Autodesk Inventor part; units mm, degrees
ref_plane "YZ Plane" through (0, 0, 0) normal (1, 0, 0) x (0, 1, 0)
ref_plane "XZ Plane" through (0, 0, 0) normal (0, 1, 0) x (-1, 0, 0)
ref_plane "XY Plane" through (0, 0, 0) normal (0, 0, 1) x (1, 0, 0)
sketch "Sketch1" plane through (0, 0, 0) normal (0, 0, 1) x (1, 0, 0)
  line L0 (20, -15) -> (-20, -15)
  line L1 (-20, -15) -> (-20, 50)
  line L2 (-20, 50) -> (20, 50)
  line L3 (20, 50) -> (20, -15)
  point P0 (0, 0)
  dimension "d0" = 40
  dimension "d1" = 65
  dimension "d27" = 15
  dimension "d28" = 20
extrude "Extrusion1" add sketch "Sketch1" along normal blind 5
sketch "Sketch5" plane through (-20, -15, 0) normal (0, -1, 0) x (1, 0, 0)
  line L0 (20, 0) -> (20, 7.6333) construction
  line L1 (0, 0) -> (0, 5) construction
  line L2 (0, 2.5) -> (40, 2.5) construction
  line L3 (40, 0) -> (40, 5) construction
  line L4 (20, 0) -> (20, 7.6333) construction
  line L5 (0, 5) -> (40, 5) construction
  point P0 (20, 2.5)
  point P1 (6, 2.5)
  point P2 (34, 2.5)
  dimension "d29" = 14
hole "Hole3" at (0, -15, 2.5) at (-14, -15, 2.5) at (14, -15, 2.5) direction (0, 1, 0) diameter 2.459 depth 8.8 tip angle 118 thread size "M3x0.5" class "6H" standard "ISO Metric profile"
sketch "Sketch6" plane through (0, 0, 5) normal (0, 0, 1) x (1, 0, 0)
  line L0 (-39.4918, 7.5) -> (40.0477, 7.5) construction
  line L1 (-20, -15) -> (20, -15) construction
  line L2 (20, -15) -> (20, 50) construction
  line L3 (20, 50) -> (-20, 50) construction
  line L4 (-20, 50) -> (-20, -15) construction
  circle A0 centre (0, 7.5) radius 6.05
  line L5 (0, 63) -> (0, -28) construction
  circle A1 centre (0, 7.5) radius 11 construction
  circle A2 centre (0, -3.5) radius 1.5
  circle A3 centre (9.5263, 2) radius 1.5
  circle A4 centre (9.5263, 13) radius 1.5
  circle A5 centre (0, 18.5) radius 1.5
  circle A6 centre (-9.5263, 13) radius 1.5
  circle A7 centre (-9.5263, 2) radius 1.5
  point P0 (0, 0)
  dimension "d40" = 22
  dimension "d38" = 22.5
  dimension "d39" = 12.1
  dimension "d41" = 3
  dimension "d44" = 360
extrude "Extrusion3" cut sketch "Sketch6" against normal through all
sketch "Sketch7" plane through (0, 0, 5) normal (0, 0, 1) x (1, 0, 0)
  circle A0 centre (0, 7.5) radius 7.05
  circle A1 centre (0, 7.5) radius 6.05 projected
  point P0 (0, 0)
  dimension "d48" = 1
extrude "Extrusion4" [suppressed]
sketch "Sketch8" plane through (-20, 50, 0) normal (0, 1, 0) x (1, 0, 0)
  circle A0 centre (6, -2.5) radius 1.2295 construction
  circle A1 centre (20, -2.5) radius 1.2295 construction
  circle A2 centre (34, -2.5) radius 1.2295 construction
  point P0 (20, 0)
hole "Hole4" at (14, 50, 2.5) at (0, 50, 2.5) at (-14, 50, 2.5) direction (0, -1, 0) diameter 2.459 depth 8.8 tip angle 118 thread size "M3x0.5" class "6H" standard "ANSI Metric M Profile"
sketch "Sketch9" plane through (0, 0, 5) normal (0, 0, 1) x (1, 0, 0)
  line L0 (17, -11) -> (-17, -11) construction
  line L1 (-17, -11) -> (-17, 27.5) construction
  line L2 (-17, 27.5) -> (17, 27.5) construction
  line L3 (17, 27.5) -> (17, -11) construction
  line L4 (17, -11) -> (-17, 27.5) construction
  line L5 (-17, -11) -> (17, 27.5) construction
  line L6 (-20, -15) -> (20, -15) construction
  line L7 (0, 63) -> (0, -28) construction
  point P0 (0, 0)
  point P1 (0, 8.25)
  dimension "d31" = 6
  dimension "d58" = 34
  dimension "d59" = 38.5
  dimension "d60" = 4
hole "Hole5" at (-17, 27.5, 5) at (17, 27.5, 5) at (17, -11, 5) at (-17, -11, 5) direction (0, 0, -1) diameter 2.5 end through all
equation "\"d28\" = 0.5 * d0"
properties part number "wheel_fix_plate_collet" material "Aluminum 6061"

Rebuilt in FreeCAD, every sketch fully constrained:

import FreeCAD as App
import Part
import Sketcher
Q = App.Units.Quantity


def add_polygon(sketch, points):
    """Adds a closed chain of lines whose ends are joined by coincident constraints."""
    first, n = sketch.GeometryCount, len(points)
    for a, b in zip(points, points[1:] + points[:1]):
        sketch.addGeometry(Part.LineSegment(App.Vector(*a, 0), App.Vector(*b, 0)), False)
    for i in range(n):
        sketch.addConstraint(Sketcher.Constraint("Coincident", first + i, 2, first + (i + 1) % n, 1))

doc = App.newDocument("Part")
params = doc.addObject("Spreadsheet::Sheet", "Params")
for row, (alias, value) in enumerate([
    ("sketch1_width", "40 mm"),
    ("sketch1_height", "65 mm"),
    ("pad1_length", "5 mm"),
    ("hole_diameter", "2.459 mm"),
    ("hole_depth", "8.8 mm"),
    ("sketch3_diameter", "3 mm"),
    ("sketch3_diameter2", "12.1 mm"),
    ("hole2_diameter", "2.459 mm"),
    ("hole2_depth", "8.8 mm"),
    ("sketch5_diameter", "2.5 mm"),
    ("hole3_diameter", "2.5 mm"),
], start=1):
    params.set(f"A{row}", alias)
    params.set(f"B{row}", "=" + value)
    params.setAlias(f"B{row}", alias)

body = doc.addObject("PartDesign::Body", "Body")

# Sketch on XY plane
sketch1 = body.newObject("Sketcher::SketchObject", "Sketch")
sketch1.AttachmentSupport = (doc.getObject("XY_Plane"), [""])
sketch1.MapMode = "FlatFace"
add_polygon(sketch1, [(-20, -15), (20, -15), (20, 50), (-20, 50)])  # lines 0-3
sketch1.addConstraint([
    Sketcher.Constraint("Horizontal", 0),
    Sketcher.Constraint("Vertical", 1),
    Sketcher.Constraint("Horizontal", 2),
    Sketcher.Constraint("Vertical", 3),
    Sketcher.Constraint("DistanceX", 0, 1, 0, 2, Q("40 mm")),
    Sketcher.Constraint("DistanceY", 1, 1, 1, 2, Q("65 mm")),
    Sketcher.Constraint("DistanceX", -1, 1, 0, 2, Q("20 mm")),
    Sketcher.Constraint("DistanceY", 0, 2, -1, 1, Q("15 mm")),
])
sketch1.setExpression("Constraints[8]", "Params.sketch1_width")
sketch1.setExpression("Constraints[9]", "Params.sketch1_height")
pad1 = body.newObject("PartDesign::Pad", "Pad")
pad1.Profile = sketch1
pad1.setExpression("Length", "Params.pad1_length")

# Sketch on XZ plane
sketch2 = body.newObject("Sketcher::SketchObject", "Sketch001")
sketch2.AttachmentSupport = (doc.getObject("XZ_Plane"), [""])
sketch2.MapMode = "FlatFace"
sketch2.AttachmentOffset = App.Placement(App.Vector(0, 0, 15), App.Rotation())
sketch2.addGeometry([
    Part.Circle(App.Vector(0, 2.5, 0), App.Vector(0, 0, 1), 1.2),
    Part.Circle(App.Vector(-14, 2.5, 0), App.Vector(0, 0, 1), 1.2),
    Part.Circle(App.Vector(14, 2.5, 0), App.Vector(0, 0, 1), 1.2),
], False)
sketch2.addConstraint([
    Sketcher.Constraint("Equal", 0, 1),
    Sketcher.Constraint("Equal", 1, 2),
    Sketcher.Constraint("Symmetric", 1, 3, 2, 3, -2),
    Sketcher.Constraint("PointOnObject", 0, 3, -2),
    Sketcher.Constraint("Horizontal", 0, 3, 1, 3),
    Sketcher.Constraint("Diameter", 0, Q("2.459 mm")),
    Sketcher.Constraint("DistanceX", 1, 3, -1, 1, Q("14 mm")),
    Sketcher.Constraint("DistanceY", -1, 1, 0, 3, Q("2.5 mm")),
])
doc.recompute()
hole = body.newObject("PartDesign::Hole", "Hole")
hole.Profile = sketch2
hole.ThreadType = "None"
hole.setExpression("Diameter", "Params.hole_diameter")
hole.DepthType = "Dimension"
hole.setExpression("Depth", "Params.hole_depth")
hole.DrillPoint = "Angled"
hole.DrillPointAngle = 118

# Sketch on XY plane
sketch3 = body.newObject("Sketcher::SketchObject", "Sketch002")
sketch3.AttachmentSupport = (doc.getObject("XY_Plane"), [""])
sketch3.MapMode = "FlatFace"
sketch3.AttachmentOffset = App.Placement(App.Vector(0, 0, 5), App.Rotation())
sketch3.addGeometry([
    Part.Circle(App.Vector(0, 7.5, 0), App.Vector(0, 0, 1), 6),  # 0
    Part.Circle(App.Vector(0, -3.5, 0), App.Vector(0, 0, 1), 1.5),  # 1
    Part.Circle(App.Vector(9.5, 2, 0), App.Vector(0, 0, 1), 1.5),  # 2
    Part.Circle(App.Vector(9.5, 13, 0), App.Vector(0, 0, 1), 1.5),  # 3
    Part.Circle(App.Vector(0, 18.5, 0), App.Vector(0, 0, 1), 1.5),  # 4
    Part.Circle(App.Vector(-9.5, 13, 0), App.Vector(0, 0, 1), 1.5),  # 5
    Part.Circle(App.Vector(-9.5, 2, 0), App.Vector(0, 0, 1), 1.5),  # 6
], False)
sketch3.addConstraint([
    Sketcher.Constraint("Equal", 1, 2),
    Sketcher.Constraint("Equal", 2, 3),
    Sketcher.Constraint("Equal", 3, 4),
    Sketcher.Constraint("Equal", 4, 5),
    Sketcher.Constraint("Equal", 5, 6),
    Sketcher.Constraint("Symmetric", 3, 3, 5, 3, -2),
    Sketcher.Constraint("Symmetric", 2, 3, 6, 3, -2),
    Sketcher.Constraint("PointOnObject", 0, 3, -2),
    Sketcher.Constraint("PointOnObject", 1, 3, -2),
    Sketcher.Constraint("PointOnObject", 4, 3, -2),
    Sketcher.Constraint("Vertical", 2, 3, 3, 3),
    Sketcher.Constraint("Diameter", 1, Q("3 mm")),
    Sketcher.Constraint("Diameter", 0, Q("12.1 mm")),
    Sketcher.Constraint("DistanceY", 1, 3, 4, 3, Q("22 mm")),
    Sketcher.Constraint("DistanceY", -1, 1, 2, 3, Q("2 mm")),
    Sketcher.Constraint("DistanceY", -1, 1, 3, 3, Q("13 mm")),
    Sketcher.Constraint("DistanceY", 1, 3, 0, 3, Q("11 mm")),
    Sketcher.Constraint("DistanceY", -1, 1, 0, 3, Q("7.5 mm")),
    Sketcher.Constraint("DistanceX", -1, 1, 2, 3, Q("9.5263 mm")),
])
sketch3.setExpression("Constraints[11]", "Params.sketch3_diameter")
sketch3.setExpression("Constraints[12]", "Params.sketch3_diameter2")
pocket1 = body.newObject("PartDesign::Pocket", "Pocket")
pocket1.Profile = sketch3
pocket1.Type = "ThroughAll"

# Sketch on XZ plane
sketch4 = body.newObject("Sketcher::SketchObject", "Sketch003")
sketch4.AttachmentSupport = (doc.getObject("XZ_Plane"), [""])
sketch4.MapMode = "FlatFace"
sketch4.AttachmentOffset = App.Placement(App.Vector(0, 0, -50), App.Rotation())
sketch4.addGeometry([
    Part.Circle(App.Vector(14, 2.5, 0), App.Vector(0, 0, 1), 1.2),
    Part.Circle(App.Vector(0, 2.5, 0), App.Vector(0, 0, 1), 1.2),
    Part.Circle(App.Vector(-14, 2.5, 0), App.Vector(0, 0, 1), 1.2),
], False)
sketch4.addConstraint([
    Sketcher.Constraint("Equal", 0, 1),
    Sketcher.Constraint("Equal", 1, 2),
    Sketcher.Constraint("Symmetric", 0, 3, 2, 3, -2),
    Sketcher.Constraint("PointOnObject", 1, 3, -2),
    Sketcher.Constraint("Horizontal", 0, 3, 1, 3),
    Sketcher.Constraint("Diameter", 0, Q("2.459 mm")),
    Sketcher.Constraint("DistanceX", -1, 1, 0, 3, Q("14 mm")),
    Sketcher.Constraint("DistanceY", -1, 1, 0, 3, Q("2.5 mm")),
])
doc.recompute()
hole2 = body.newObject("PartDesign::Hole", "Hole001")
hole2.Profile = sketch4
hole2.ThreadType = "None"
hole2.setExpression("Diameter", "Params.hole2_diameter")
hole2.DepthType = "Dimension"
hole2.setExpression("Depth", "Params.hole2_depth")
hole2.DrillPoint = "Angled"
hole2.DrillPointAngle = 118
hole2.Reversed = True

# Sketch on XY plane
sketch5 = body.newObject("Sketcher::SketchObject", "Sketch004")
sketch5.AttachmentSupport = (doc.getObject("XY_Plane"), [""])
sketch5.MapMode = "FlatFace"
sketch5.AttachmentOffset = App.Placement(App.Vector(0, 0, 5), App.Rotation())
sketch5.addGeometry([
    Part.Circle(App.Vector(-17, 27.5, 0), App.Vector(0, 0, 1), 1.2),
    Part.Circle(App.Vector(17, 27.5, 0), App.Vector(0, 0, 1), 1.2),
    Part.Circle(App.Vector(17, -11, 0), App.Vector(0, 0, 1), 1.2),
    Part.Circle(App.Vector(-17, -11, 0), App.Vector(0, 0, 1), 1.2),
], False)
sketch5.addConstraint([
    Sketcher.Constraint("Equal", 0, 1),
    Sketcher.Constraint("Equal", 1, 2),
    Sketcher.Constraint("Equal", 2, 3),
    Sketcher.Constraint("Symmetric", 0, 3, 1, 3, -2),
    Sketcher.Constraint("Symmetric", 2, 3, 3, 3, -2),
    Sketcher.Constraint("Vertical", 1, 3, 2, 3),
    Sketcher.Constraint("Diameter", 0, Q("2.5 mm")),
    Sketcher.Constraint("DistanceX", 0, 3, -1, 1, Q("17 mm")),
    Sketcher.Constraint("DistanceY", 2, 3, -1, 1, Q("11 mm")),
    Sketcher.Constraint("DistanceY", -1, 1, 0, 3, Q("27.5 mm")),
])
sketch5.setExpression("Constraints[6]", "Params.sketch5_diameter")
doc.recompute()
hole3 = body.newObject("PartDesign::Hole", "Hole002")
hole3.Profile = sketch5
hole3.ThreadType = "None"
hole3.setExpression("Diameter", "Params.hole3_diameter")
hole3.DepthType = "ThroughAll"

doc.recompute()
